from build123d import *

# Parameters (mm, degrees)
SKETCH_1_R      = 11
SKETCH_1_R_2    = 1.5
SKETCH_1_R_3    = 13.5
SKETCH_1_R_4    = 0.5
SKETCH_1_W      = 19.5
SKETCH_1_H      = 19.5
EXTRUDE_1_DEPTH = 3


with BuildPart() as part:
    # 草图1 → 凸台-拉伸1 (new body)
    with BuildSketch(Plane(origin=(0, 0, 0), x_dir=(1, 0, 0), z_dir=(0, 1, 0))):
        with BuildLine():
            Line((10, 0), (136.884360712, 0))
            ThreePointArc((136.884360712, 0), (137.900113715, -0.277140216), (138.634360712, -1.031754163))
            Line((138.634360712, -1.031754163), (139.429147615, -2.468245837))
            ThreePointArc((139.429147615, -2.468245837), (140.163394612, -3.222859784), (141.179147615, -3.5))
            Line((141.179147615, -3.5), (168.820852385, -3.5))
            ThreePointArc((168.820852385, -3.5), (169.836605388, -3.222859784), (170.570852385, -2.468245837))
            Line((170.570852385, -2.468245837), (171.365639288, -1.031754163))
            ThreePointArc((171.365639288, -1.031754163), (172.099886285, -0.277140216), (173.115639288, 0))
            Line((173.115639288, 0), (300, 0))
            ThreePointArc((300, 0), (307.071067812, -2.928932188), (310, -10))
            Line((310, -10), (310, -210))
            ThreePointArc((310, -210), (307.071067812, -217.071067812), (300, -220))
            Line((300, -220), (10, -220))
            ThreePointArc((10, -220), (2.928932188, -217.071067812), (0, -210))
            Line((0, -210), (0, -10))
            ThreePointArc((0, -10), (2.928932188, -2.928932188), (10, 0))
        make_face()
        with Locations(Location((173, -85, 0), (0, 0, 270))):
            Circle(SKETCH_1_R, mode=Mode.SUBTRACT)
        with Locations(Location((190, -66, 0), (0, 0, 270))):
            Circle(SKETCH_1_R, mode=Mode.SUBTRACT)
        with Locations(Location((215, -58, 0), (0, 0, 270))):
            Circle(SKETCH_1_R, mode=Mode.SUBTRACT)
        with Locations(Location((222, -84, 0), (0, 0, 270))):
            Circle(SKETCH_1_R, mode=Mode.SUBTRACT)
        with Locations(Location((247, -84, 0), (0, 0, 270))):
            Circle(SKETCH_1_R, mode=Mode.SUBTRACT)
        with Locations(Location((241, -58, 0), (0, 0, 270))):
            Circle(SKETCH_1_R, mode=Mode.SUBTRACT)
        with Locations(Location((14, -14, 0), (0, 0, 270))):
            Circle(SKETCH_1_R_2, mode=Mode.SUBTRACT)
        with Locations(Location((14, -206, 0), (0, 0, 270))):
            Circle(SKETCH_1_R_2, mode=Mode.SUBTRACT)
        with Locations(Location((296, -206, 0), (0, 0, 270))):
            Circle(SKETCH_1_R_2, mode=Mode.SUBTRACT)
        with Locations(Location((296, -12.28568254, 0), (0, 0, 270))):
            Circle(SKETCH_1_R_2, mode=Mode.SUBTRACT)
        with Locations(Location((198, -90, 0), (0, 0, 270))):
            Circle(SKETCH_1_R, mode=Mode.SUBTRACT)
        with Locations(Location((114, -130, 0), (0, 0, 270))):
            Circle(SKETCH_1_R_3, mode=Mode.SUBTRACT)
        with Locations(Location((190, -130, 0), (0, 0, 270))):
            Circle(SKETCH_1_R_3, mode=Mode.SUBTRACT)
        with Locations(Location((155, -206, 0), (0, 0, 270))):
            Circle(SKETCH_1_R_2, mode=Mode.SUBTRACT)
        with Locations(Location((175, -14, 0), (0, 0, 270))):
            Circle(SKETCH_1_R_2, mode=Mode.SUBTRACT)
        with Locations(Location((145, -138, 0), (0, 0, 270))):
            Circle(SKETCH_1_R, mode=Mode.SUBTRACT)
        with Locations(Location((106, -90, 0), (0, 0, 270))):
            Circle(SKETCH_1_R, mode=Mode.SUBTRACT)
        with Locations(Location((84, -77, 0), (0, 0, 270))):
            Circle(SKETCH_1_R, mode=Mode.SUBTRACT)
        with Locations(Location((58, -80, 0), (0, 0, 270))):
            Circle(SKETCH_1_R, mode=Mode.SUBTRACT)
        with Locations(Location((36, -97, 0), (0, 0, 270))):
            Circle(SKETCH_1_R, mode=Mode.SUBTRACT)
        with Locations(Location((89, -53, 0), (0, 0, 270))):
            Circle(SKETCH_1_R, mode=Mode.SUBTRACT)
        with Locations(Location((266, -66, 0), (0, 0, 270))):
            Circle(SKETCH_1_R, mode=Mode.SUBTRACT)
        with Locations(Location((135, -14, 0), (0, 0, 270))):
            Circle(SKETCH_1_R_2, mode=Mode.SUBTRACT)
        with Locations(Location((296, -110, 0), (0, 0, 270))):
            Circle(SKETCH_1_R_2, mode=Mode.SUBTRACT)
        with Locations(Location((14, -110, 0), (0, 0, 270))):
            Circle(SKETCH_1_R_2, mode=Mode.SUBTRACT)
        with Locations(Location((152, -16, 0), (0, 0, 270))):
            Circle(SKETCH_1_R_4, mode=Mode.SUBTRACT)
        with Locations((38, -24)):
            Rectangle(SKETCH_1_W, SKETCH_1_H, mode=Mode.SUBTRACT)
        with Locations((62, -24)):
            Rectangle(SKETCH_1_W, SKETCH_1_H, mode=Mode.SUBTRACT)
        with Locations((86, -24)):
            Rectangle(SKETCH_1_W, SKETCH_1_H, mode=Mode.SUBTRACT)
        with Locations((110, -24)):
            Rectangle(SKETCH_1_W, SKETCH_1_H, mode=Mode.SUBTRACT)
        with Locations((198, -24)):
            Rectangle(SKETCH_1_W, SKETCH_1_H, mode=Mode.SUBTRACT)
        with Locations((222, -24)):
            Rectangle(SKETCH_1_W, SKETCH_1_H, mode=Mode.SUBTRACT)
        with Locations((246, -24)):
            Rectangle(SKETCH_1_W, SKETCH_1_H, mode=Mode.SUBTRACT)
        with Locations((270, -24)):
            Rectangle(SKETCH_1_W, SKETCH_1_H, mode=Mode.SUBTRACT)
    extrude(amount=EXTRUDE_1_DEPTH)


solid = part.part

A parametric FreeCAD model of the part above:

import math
import FreeCAD as App
import Part
import Sketcher

V = App.Vector
Q = App.Units.Quantity


def add_polygon(sketch, points):
    """Adds a closed chain of lines whose ends are joined by coincident constraints."""
    first, n = sketch.GeometryCount, len(points)
    for a, b in zip(points, points[1:] + points[:1]):
        sketch.addGeometry(Part.LineSegment(App.Vector(*a, 0), App.Vector(*b, 0)), False)
    for i in range(n):
        sketch.addConstraint(Sketcher.Constraint("Coincident", first + i, 2, first + (i + 1) % n, 1))

doc = App.newDocument("Part")
body = doc.addObject("PartDesign::Body", "Body")

# Sketch on XZ plane
sketch1 = doc.addObject("Sketcher::SketchObject", "Sketch")
body.addObject(sketch1)
sketch1.AttachmentSupport = (doc.XZ_Plane, [""])
sketch1.MapMode = "FlatFace"
sketch1.addGeometry(Part.LineSegment(V(136.9, 0, 0), V(10, 0, 0)), False)  # 0
sketch1.addGeometry(Part.ArcOfCircle(Part.Circle(V(10, 10, 0), V(0, 0, 1), 10), math.radians(180), math.radians(270)), False)  # 1
sketch1.addGeometry(Part.LineSegment(V(0, 10, 0), V(0, 210, 0)), False)  # 2
sketch1.addGeometry(Part.ArcOfCircle(Part.Circle(V(10, 210, 0), V(0, 0, 1), 10), math.radians(90), math.radians(180)), False)  # 3
sketch1.addGeometry(Part.LineSegment(V(10, 220, 0), V(300, 220, 0)), False)  # 4
sketch1.addGeometry(Part.ArcOfCircle(Part.Circle(V(300, 210, 0), V(0, 0, 1), 10), math.radians(0), math.radians(90)), False)  # 5
sketch1.addGeometry(Part.LineSegment(V(310, 210, 0), V(310, 10, 0)), False)  # 6
sketch1.addGeometry(Part.ArcOfCircle(Part.Circle(V(300, 10, 0), V(0, 0, 1), 10), math.radians(-90), math.radians(0)), False)  # 7
sketch1.addGeometry(Part.LineSegment(V(300, 0, 0), V(173.1, 0, 0)), False)  # 8
sketch1.addGeometry(Part.ArcOfCircle(Part.Circle(V(173.1, 2, 0), V(0, 0, 1), 2), math.radians(-151), math.radians(-90)), False)  # 9
sketch1.addGeometry(Part.LineSegment(V(171.4, 1, 0), V(170.6, 2.5, 0)), False)  # 10
sketch1.addGeometry(Part.ArcOfCircle(Part.Circle(V(168.8, 1.5, 0), V(0, 0, 1), 2), math.radians(29), math.radians(90)), False)  # 11
sketch1.addGeometry(Part.LineSegment(V(168.8, 3.5, 0), V(141.2, 3.5, 0)), False)  # 12
sketch1.addGeometry(Part.ArcOfCircle(Part.Circle(V(141.2, 1.5, 0), V(0, 0, 1), 2), math.radians(90), math.radians(151)), False)  # 13
sketch1.addGeometry(Part.LineSegment(V(139.4, 2.5, 0), V(138.6, 1, 0)), False)  # 14
sketch1.addGeometry(Part.ArcOfCircle(Part.Circle(V(136.9, 2, 0), V(0, 0, 1), 2), math.radians(-90), math.radians(-29)), False)  # 15
sketch1.addGeometry(Part.Circle(V(296, 206, 0), V(0, 0, 1), 1.5), False)  # 16
sketch1.addGeometry(Part.Circle(V(296, 110, 0), V(0, 0, 1), 1.5), False)  # 17
sketch1.addGeometry(Part.Circle(V(190, 130, 0), V(0, 0, 1), 13.5), False)  # 18
sketch1.addGeometry(Part.Circle(V(155, 206, 0), V(0, 0, 1), 1.5), False)  # 19
sketch1.addGeometry(Part.Circle(V(14, 206, 0), V(0, 0, 1), 1.5), False)  # 20
sketch1.addGeometry(Part.Circle(V(145, 138, 0), V(0, 0, 1), 11), False)  # 21
sketch1.addGeometry(Part.Circle(V(114, 130, 0), V(0, 0, 1), 13.5), False)  # 22
sketch1.addGeometry(Part.Circle(V(14, 110, 0), V(0, 0, 1), 1.5), False)  # 23
sketch1.addGeometry(Part.Circle(V(266, 66, 0), V(0, 0, 1), 11), False)  # 24
sketch1.addGeometry(Part.Circle(V(247, 84, 0), V(0, 0, 1), 11), False)  # 25
sketch1.addGeometry(Part.Circle(V(198, 90, 0), V(0, 0, 1), 11), False)  # 26
sketch1.addGeometry(Part.Circle(V(173, 85, 0), V(0, 0, 1), 11), False)  # 27
sketch1.addGeometry(Part.Circle(V(222, 84, 0), V(0, 0, 1), 11), False)  # 28
sketch1.addGeometry(Part.Circle(V(190, 66, 0), V(0, 0, 1), 11), False)  # 29
sketch1.addGeometry(Part.Circle(V(241, 58, 0), V(0, 0, 1), 11), False)  # 30
add_polygon(sketch1, [(260.2, 33.8), (260.2, 14.2), (279.8, 14.2), (279.8, 33.8)])  # lines 31-34
sketch1.addGeometry(Part.Circle(V(296, 12.3, 0), V(0, 0, 1), 1.5), False)  # 35
add_polygon(sketch1, [(236.2, 33.8), (236.2, 14.2), (255.8, 14.2), (255.8, 33.8)])  # lines 36-39
sketch1.addGeometry(Part.Circle(V(215, 58, 0), V(0, 0, 1), 11), False)  # 40
add_polygon(sketch1, [(212.2, 33.8), (212.2, 14.2), (231.8, 14.2), (231.8, 33.8)])  # lines 41-44
add_polygon(sketch1, [(188.2, 33.8), (188.2, 14.2), (207.8, 14.2), (207.8, 33.8)])  # lines 45-48
sketch1.addGeometry(Part.Circle(V(175, 14, 0), V(0, 0, 1), 1.5), False)  # 49
sketch1.addGeometry(Part.Circle(V(106, 90, 0), V(0, 0, 1), 11), False)  # 50
sketch1.addGeometry(Part.Circle(V(84, 77, 0), V(0, 0, 1), 11), False)  # 51
sketch1.addGeometry(Part.Circle(V(36, 97, 0), V(0, 0, 1), 11), False)  # 52
sketch1.addGeometry(Part.Circle(V(58, 80, 0), V(0, 0, 1), 11), False)  # 53
sketch1.addGeometry(Part.Circle(V(89, 53, 0), V(0, 0, 1), 11), False)  # 54
sketch1.addGeometry(Part.Circle(V(152, 16, 0), V(0, 0, 1), 0.5), False)  # 55
sketch1.addGeometry(Part.Circle(V(135, 14, 0), V(0, 0, 1), 1.5), False)  # 56
add_polygon(sketch1, [(100.2, 33.8), (100.2, 14.2), (119.8, 14.2), (119.8, 33.8)])  # lines 57-60
add_polygon(sketch1, [(76.2, 33.8), (76.2, 14.2), (95.8, 14.2), (95.8, 33.8)])  # lines 61-64
add_polygon(sketch1, [(52.2, 33.8), (52.2, 14.2), (71.8, 14.2), (71.8, 33.8)])  # lines 65-68
add_polygon(sketch1, [(28.2, 33.8), (28.2, 14.2), (47.8, 14.2), (47.8, 33.8)])  # lines 69-72
sketch1.addGeometry(Part.Circle(V(14, 14, 0), V(0, 0, 1), 1.5), False)  # 73
sketch1.addConstraint([
    Sketcher.Constraint("Tangent", 0, 2, 1, 2),
    Sketcher.Constraint("Tangent", 1, 1, 2, 1),
    Sketcher.Constraint("Tangent", 2, 2, 3, 2),
    Sketcher.Constraint("Tangent", 3, 1, 4, 1),
    Sketcher.Constraint("Tangent", 4, 2, 5, 2),
    Sketcher.Constraint("Tangent", 5, 1, 6, 1),
    Sketcher.Constraint("Tangent", 6, 2, 7, 2),
    Sketcher.Constraint("Tangent", 7, 1, 8, 1),
    Sketcher.Constraint("Tangent", 8, 2, 9, 2),
    Sketcher.Constraint("Tangent", 9, 1, 10, 1),
    Sketcher.Constraint("Tangent", 10, 2, 11, 1),
    Sketcher.Constraint("Tangent", 11, 2, 12, 1),
    Sketcher.Constraint("Tangent", 12, 2, 13, 1),
    Sketcher.Constraint("Tangent", 13, 2, 14, 1),
    Sketcher.Constraint("Tangent", 14, 2, 15, 2),
    Sketcher.Constraint("Tangent", 15, 1, 0, 1),
    Sketcher.Constraint("Horizontal", 0),
    Sketcher.Constraint("Vertical", 2),
    Sketcher.Constraint("Horizontal", 4),
    Sketcher.Constraint("Vertical", 6),
    Sketcher.Constraint("Horizontal", 8),
    Sketcher.Constraint("Horizontal", 12),
    Sketcher.Constraint("Vertical", 31),
    Sketcher.Constraint("Horizontal", 32),
    Sketcher.Constraint("Vertical", 33),
    Sketcher.Constraint("Horizontal", 34),
    Sketcher.Constraint("Vertical", 36),
    Sketcher.Constraint("Horizontal", 37),
    Sketcher.Constraint("Vertical", 38),
    Sketcher.Constraint("Horizontal", 39),
    Sketcher.Constraint("Vertical", 41),
    Sketcher.Constraint("Horizontal", 42),
    Sketcher.Constraint("Vertical", 43),
    Sketcher.Constraint("Horizontal", 44),
    Sketcher.Constraint("Vertical", 45),
    Sketcher.Constraint("Horizontal", 46),
    Sketcher.Constraint("Vertical", 47),
    Sketcher.Constraint("Horizontal", 48),
    Sketcher.Constraint("Vertical", 57),
    Sketcher.Constraint("Horizontal", 58),
    Sketcher.Constraint("Vertical", 59),
    Sketcher.Constraint("Horizontal", 60),
    Sketcher.Constraint("Vertical", 61),
    Sketcher.Constraint("Horizontal", 62),
    Sketcher.Constraint("Vertical", 63),
    Sketcher.Constraint("Horizontal", 64),
    Sketcher.Constraint("Vertical", 65),
    Sketcher.Constraint("Horizontal", 66),
    Sketcher.Constraint("Vertical", 67),
    Sketcher.Constraint("Horizontal", 68),
    Sketcher.Constraint("Vertical", 69),
    Sketcher.Constraint("Horizontal", 70),
    Sketcher.Constraint("Vertical", 71),
    Sketcher.Constraint("Horizontal", 72),
    Sketcher.Constraint("Equal", 1, 3),
    Sketcher.Constraint("Equal", 3, 5),
    Sketcher.Constraint("Equal", 5, 7),
    Sketcher.Constraint("Equal", 9, 11),
    Sketcher.Constraint("Equal", 11, 13),
    Sketcher.Constraint("Equal", 13, 15),
    Sketcher.Constraint("Equal", 16, 17),
    Sketcher.Constraint("Equal", 17, 19),
    Sketcher.Constraint("Equal", 19, 20),
    Sketcher.Constraint("Equal", 18, 22),
    Sketcher.Constraint("Equal", 20, 23),
    Sketcher.Constraint("Equal", 21, 24),
    Sketcher.Constraint("Equal", 24, 25),
    Sketcher.Constraint("Equal", 25, 26),
    Sketcher.Constraint("Equal", 26, 27),
    Sketcher.Constraint("Equal", 27, 28),
    Sketcher.Constraint("Equal", 28, 29),
    Sketcher.Constraint("Equal", 29, 30),
    Sketcher.Constraint("Equal", 23, 35),
    Sketcher.Constraint("Equal", 30, 40),
    Sketcher.Constraint("Equal", 35, 49),
    Sketcher.Constraint("Equal", 40, 50),
    Sketcher.Constraint("Equal", 50, 51),
    Sketcher.Constraint("Equal", 51, 52),
    Sketcher.Constraint("Equal", 52, 53),
    Sketcher.Constraint("Equal", 53, 54),
    Sketcher.Constraint("Equal", 49, 56),
    Sketcher.Constraint("Equal", 56, 73),
    Sketcher.Constraint("PointOnObject", 0, 2, -1),
    Sketcher.Constraint("PointOnObject", 1, 1, -2),
    Sketcher.Constraint("PointOnObject", 7, 1, -1),
    Sketcher.Constraint("Horizontal", 16, 3, 19, 3),
    Sketcher.Constraint("Horizontal", 19, 3, 20, 3),
    Sketcher.Constraint("Horizontal", 18, 3, 22, 3),
    Sketcher.Constraint("Horizontal", 17, 3, 23, 3),
    Sketcher.Constraint("Horizontal", 25, 3, 28, 3),
    Sketcher.Constraint("Horizontal", 24, 3, 29, 3),
    Sketcher.Constraint("Horizontal", 30, 3, 40, 3),
    Sketcher.Constraint("Horizontal", 26, 3, 50, 3),
    Sketcher.Constraint("Horizontal", 49, 3, 56, 3),
    Sketcher.Constraint("Horizontal", 56, 3, 73, 3),
    Sketcher.Constraint("Horizontal", 10, 2, 13, 2),
    Sketcher.Constraint("Horizontal", 32, 2, 36, 2),
    Sketcher.Constraint("Horizontal", 34, 2, 38, 2),
    Sketcher.Constraint("Horizontal", 37, 2, 41, 2),
    Sketcher.Constraint("Horizontal", 39, 2, 43, 2),
    Sketcher.Constraint("Horizontal", 42, 2, 45, 2),
    Sketcher.Constraint("Horizontal", 44, 2, 47, 2),
    Sketcher.Constraint("Horizontal", 46, 2, 57, 2),
    Sketcher.Constraint("Horizontal", 48, 2, 59, 2),
    Sketcher.Constraint("Horizontal", 58, 2, 61, 2),
    Sketcher.Constraint("Horizontal", 60, 2, 63, 2),
    Sketcher.Constraint("Horizontal", 62, 2, 65, 2),
    Sketcher.Constraint("Horizontal", 64, 2, 67, 2),
    Sketcher.Constraint("Horizontal", 66, 2, 69, 2),
    Sketcher.Constraint("Horizontal", 68, 2, 71, 2),
    Sketcher.Constraint("Vertical", 16, 3, 17, 3),
    Sketcher.Constraint("Vertical", 20, 3, 23, 3),
    Sketcher.Constraint("Vertical", 18, 3, 29, 3),
    Sketcher.Constraint("Vertical", 17, 3, 35, 3),
    Sketcher.Constraint("Vertical", 23, 3, 73, 3),
    Sketcher.Constraint("Equal", 0, 8),
    Sketcher.Constraint("Equal", 34, 37),
    Sketcher.Constraint("Equal", 39, 42),
    Sketcher.Constraint("Equal", 44, 46),
    Sketcher.Constraint("Equal", 48, 58),
    Sketcher.Constraint("Equal", 60, 62),
    Sketcher.Constraint("Equal", 64, 66),
    Sketcher.Constraint("Equal", 68, 70),
    Sketcher.Constraint("Equal", 72, 31),
    Sketcher.Constraint("Diameter", 16, Q("3 mm")),
    Sketcher.Constraint("Diameter", 18, Q("27 mm")),
    Sketcher.Constraint("Diameter", 21, Q("22 mm")),
    Sketcher.Constraint("Diameter", 55, Q("1 mm")),
    Sketcher.Constraint("Radius", 1, Q("10 mm")),
    Sketcher.Constraint("Radius", 9, Q("2 mm")),
    Sketcher.Constraint("DistanceX", 4, 1, 4, 2, Q("290 mm")),
    Sketcher.Constraint("DistanceY", 2, 1, 2, 2, Q("200 mm")),
    Sketcher.Constraint("DistanceX", 32, 1, 32, 2, Q("19.5 mm")),
    Sketcher.Constraint("DistanceX", -1, 1, 16, 3, Q("296 mm")),
    Sketcher.Constraint("DistanceY", -1, 1, 16, 3, Q("206 mm")),
    Sketcher.Constraint("DistanceY", -1, 1, 17, 3, Q("110 mm")),
    Sketcher.Constraint("DistanceX", -1, 1, 18, 3, Q("190 mm")),
    Sketcher.Constraint("DistanceY", -1, 1, 18, 3, Q("130 mm")),
    Sketcher.Constraint("DistanceX", -1, 1, 19, 3, Q("155 mm")),
    Sketcher.Constraint("DistanceX", -1, 1, 20, 3, Q("14 mm")),
    Sketcher.Constraint("DistanceX", -1, 1, 21, 3, Q("145 mm")),
    Sketcher.Constraint("DistanceY", -1, 1, 21, 3, Q("138 mm")),
    Sketcher.Constraint("DistanceX", -1, 1, 22, 3, Q("114 mm")),
    Sketcher.Constraint("DistanceX", -1, 1, 24, 3, Q("266 mm")),
    Sketcher.Constraint("DistanceY", -1, 1, 24, 3, Q("66 mm")),
    Sketcher.Constraint("DistanceX", -1, 1, 25, 3, Q("247 mm")),
    Sketcher.Constraint("DistanceY", -1, 1, 25, 3, Q("84 mm")),
    Sketcher.Constraint("DistanceX", -1, 1, 26, 3, Q("198 mm")),
    Sketcher.Constraint("DistanceY", -1, 1, 26, 3, Q("90 mm")),
    Sketcher.Constraint("DistanceX", -1, 1, 27, 3, Q("173 mm")),
    Sketcher.Constraint("DistanceY", -1, 1, 27, 3, Q("85 mm")),
    Sketcher.Constraint("DistanceX", -1, 1, 28, 3, Q("222 mm")),
    Sketcher.Constraint("DistanceX", -1, 1, 30, 3, Q("241 mm")),
    Sketcher.Constraint("DistanceY", -1, 1, 30, 3, Q("58 mm")),
    Sketcher.Constraint("DistanceX", -1, 1, 40, 3, Q("215 mm")),
    Sketcher.Constraint("DistanceX", -1, 1, 49, 3, Q("175 mm")),
    Sketcher.Constraint("DistanceY", -1, 1, 49, 3, Q("14 mm")),
    Sketcher.Constraint("DistanceX", -1, 1, 50, 3, Q("106 mm")),
    Sketcher.Constraint("DistanceX", -1, 1, 51, 3, Q("84 mm")),
    Sketcher.Constraint("DistanceY", -1, 1, 51, 3, Q("77 mm")),
    Sketcher.Constraint("DistanceX", -1, 1, 52, 3, Q("36 mm")),
    Sketcher.Constraint("DistanceY", -1, 1, 52, 3, Q("97 mm")),
    Sketcher.Constraint("DistanceX", -1, 1, 53, 3, Q("58 mm")),
    Sketcher.Constraint("DistanceY", -1, 1, 53, 3, Q("80 mm")),
    Sketcher.Constraint("DistanceX", -1, 1, 54, 3, Q("89 mm")),
    Sketcher.Constraint("DistanceY", -1, 1, 54, 3, Q("53 mm")),
    Sketcher.Constraint("DistanceX", -1, 1, 55, 3, Q("152 mm")),
    Sketcher.Constraint("DistanceY", -1, 1, 55, 3, Q("16 mm")),
    Sketcher.Constraint("DistanceX", -1, 1, 56, 3, Q("135 mm")),
    Sketcher.Constraint("DistanceY", -1, 1, 11, 3, Q("1.5 mm")),
    Sketcher.Constraint("DistanceX", -1, 1, 31, 2, Q("260.25 mm")),
    Sketcher.Constraint("DistanceY", -1, 1, 31, 2, Q("14.25 mm")),
    Sketcher.Constraint("DistanceX", -1, 1, 36, 2, Q("236.25 mm")),
    Sketcher.Constraint("DistanceX", -1, 1, 41, 2, Q("212.25 mm")),
    Sketcher.Constraint("DistanceX", -1, 1, 45, 2, Q("188.25 mm")),
    Sketcher.Constraint("DistanceX", -1, 1, 57, 2, Q("100.25 mm")),
    Sketcher.Constraint("DistanceX", -1, 1, 61, 2, Q("76.25 mm")),
    Sketcher.Constraint("DistanceX", -1, 1, 65, 2, Q("52.25 mm")),
    Sketcher.Constraint("DistanceX", -1, 1, 69, 2, Q("28.25 mm")),
    Sketcher.Constraint("DistanceX", 0, 2, 0, 1, Q("126.884361 mm")),
    Sketcher.Constraint("DistanceX", 12, 2, 12, 1, Q("27.641705 mm")),
    Sketcher.Constraint("DistanceY", -1, 1, 35, 3, Q("12.285683 mm")),
])
pad1 = doc.addObject("PartDesign::Pad", "Pad")
body.addObject(pad1)
pad1.Profile = sketch1
pad1.Length = 3
pad1.Reversed = True

doc.recompute()
